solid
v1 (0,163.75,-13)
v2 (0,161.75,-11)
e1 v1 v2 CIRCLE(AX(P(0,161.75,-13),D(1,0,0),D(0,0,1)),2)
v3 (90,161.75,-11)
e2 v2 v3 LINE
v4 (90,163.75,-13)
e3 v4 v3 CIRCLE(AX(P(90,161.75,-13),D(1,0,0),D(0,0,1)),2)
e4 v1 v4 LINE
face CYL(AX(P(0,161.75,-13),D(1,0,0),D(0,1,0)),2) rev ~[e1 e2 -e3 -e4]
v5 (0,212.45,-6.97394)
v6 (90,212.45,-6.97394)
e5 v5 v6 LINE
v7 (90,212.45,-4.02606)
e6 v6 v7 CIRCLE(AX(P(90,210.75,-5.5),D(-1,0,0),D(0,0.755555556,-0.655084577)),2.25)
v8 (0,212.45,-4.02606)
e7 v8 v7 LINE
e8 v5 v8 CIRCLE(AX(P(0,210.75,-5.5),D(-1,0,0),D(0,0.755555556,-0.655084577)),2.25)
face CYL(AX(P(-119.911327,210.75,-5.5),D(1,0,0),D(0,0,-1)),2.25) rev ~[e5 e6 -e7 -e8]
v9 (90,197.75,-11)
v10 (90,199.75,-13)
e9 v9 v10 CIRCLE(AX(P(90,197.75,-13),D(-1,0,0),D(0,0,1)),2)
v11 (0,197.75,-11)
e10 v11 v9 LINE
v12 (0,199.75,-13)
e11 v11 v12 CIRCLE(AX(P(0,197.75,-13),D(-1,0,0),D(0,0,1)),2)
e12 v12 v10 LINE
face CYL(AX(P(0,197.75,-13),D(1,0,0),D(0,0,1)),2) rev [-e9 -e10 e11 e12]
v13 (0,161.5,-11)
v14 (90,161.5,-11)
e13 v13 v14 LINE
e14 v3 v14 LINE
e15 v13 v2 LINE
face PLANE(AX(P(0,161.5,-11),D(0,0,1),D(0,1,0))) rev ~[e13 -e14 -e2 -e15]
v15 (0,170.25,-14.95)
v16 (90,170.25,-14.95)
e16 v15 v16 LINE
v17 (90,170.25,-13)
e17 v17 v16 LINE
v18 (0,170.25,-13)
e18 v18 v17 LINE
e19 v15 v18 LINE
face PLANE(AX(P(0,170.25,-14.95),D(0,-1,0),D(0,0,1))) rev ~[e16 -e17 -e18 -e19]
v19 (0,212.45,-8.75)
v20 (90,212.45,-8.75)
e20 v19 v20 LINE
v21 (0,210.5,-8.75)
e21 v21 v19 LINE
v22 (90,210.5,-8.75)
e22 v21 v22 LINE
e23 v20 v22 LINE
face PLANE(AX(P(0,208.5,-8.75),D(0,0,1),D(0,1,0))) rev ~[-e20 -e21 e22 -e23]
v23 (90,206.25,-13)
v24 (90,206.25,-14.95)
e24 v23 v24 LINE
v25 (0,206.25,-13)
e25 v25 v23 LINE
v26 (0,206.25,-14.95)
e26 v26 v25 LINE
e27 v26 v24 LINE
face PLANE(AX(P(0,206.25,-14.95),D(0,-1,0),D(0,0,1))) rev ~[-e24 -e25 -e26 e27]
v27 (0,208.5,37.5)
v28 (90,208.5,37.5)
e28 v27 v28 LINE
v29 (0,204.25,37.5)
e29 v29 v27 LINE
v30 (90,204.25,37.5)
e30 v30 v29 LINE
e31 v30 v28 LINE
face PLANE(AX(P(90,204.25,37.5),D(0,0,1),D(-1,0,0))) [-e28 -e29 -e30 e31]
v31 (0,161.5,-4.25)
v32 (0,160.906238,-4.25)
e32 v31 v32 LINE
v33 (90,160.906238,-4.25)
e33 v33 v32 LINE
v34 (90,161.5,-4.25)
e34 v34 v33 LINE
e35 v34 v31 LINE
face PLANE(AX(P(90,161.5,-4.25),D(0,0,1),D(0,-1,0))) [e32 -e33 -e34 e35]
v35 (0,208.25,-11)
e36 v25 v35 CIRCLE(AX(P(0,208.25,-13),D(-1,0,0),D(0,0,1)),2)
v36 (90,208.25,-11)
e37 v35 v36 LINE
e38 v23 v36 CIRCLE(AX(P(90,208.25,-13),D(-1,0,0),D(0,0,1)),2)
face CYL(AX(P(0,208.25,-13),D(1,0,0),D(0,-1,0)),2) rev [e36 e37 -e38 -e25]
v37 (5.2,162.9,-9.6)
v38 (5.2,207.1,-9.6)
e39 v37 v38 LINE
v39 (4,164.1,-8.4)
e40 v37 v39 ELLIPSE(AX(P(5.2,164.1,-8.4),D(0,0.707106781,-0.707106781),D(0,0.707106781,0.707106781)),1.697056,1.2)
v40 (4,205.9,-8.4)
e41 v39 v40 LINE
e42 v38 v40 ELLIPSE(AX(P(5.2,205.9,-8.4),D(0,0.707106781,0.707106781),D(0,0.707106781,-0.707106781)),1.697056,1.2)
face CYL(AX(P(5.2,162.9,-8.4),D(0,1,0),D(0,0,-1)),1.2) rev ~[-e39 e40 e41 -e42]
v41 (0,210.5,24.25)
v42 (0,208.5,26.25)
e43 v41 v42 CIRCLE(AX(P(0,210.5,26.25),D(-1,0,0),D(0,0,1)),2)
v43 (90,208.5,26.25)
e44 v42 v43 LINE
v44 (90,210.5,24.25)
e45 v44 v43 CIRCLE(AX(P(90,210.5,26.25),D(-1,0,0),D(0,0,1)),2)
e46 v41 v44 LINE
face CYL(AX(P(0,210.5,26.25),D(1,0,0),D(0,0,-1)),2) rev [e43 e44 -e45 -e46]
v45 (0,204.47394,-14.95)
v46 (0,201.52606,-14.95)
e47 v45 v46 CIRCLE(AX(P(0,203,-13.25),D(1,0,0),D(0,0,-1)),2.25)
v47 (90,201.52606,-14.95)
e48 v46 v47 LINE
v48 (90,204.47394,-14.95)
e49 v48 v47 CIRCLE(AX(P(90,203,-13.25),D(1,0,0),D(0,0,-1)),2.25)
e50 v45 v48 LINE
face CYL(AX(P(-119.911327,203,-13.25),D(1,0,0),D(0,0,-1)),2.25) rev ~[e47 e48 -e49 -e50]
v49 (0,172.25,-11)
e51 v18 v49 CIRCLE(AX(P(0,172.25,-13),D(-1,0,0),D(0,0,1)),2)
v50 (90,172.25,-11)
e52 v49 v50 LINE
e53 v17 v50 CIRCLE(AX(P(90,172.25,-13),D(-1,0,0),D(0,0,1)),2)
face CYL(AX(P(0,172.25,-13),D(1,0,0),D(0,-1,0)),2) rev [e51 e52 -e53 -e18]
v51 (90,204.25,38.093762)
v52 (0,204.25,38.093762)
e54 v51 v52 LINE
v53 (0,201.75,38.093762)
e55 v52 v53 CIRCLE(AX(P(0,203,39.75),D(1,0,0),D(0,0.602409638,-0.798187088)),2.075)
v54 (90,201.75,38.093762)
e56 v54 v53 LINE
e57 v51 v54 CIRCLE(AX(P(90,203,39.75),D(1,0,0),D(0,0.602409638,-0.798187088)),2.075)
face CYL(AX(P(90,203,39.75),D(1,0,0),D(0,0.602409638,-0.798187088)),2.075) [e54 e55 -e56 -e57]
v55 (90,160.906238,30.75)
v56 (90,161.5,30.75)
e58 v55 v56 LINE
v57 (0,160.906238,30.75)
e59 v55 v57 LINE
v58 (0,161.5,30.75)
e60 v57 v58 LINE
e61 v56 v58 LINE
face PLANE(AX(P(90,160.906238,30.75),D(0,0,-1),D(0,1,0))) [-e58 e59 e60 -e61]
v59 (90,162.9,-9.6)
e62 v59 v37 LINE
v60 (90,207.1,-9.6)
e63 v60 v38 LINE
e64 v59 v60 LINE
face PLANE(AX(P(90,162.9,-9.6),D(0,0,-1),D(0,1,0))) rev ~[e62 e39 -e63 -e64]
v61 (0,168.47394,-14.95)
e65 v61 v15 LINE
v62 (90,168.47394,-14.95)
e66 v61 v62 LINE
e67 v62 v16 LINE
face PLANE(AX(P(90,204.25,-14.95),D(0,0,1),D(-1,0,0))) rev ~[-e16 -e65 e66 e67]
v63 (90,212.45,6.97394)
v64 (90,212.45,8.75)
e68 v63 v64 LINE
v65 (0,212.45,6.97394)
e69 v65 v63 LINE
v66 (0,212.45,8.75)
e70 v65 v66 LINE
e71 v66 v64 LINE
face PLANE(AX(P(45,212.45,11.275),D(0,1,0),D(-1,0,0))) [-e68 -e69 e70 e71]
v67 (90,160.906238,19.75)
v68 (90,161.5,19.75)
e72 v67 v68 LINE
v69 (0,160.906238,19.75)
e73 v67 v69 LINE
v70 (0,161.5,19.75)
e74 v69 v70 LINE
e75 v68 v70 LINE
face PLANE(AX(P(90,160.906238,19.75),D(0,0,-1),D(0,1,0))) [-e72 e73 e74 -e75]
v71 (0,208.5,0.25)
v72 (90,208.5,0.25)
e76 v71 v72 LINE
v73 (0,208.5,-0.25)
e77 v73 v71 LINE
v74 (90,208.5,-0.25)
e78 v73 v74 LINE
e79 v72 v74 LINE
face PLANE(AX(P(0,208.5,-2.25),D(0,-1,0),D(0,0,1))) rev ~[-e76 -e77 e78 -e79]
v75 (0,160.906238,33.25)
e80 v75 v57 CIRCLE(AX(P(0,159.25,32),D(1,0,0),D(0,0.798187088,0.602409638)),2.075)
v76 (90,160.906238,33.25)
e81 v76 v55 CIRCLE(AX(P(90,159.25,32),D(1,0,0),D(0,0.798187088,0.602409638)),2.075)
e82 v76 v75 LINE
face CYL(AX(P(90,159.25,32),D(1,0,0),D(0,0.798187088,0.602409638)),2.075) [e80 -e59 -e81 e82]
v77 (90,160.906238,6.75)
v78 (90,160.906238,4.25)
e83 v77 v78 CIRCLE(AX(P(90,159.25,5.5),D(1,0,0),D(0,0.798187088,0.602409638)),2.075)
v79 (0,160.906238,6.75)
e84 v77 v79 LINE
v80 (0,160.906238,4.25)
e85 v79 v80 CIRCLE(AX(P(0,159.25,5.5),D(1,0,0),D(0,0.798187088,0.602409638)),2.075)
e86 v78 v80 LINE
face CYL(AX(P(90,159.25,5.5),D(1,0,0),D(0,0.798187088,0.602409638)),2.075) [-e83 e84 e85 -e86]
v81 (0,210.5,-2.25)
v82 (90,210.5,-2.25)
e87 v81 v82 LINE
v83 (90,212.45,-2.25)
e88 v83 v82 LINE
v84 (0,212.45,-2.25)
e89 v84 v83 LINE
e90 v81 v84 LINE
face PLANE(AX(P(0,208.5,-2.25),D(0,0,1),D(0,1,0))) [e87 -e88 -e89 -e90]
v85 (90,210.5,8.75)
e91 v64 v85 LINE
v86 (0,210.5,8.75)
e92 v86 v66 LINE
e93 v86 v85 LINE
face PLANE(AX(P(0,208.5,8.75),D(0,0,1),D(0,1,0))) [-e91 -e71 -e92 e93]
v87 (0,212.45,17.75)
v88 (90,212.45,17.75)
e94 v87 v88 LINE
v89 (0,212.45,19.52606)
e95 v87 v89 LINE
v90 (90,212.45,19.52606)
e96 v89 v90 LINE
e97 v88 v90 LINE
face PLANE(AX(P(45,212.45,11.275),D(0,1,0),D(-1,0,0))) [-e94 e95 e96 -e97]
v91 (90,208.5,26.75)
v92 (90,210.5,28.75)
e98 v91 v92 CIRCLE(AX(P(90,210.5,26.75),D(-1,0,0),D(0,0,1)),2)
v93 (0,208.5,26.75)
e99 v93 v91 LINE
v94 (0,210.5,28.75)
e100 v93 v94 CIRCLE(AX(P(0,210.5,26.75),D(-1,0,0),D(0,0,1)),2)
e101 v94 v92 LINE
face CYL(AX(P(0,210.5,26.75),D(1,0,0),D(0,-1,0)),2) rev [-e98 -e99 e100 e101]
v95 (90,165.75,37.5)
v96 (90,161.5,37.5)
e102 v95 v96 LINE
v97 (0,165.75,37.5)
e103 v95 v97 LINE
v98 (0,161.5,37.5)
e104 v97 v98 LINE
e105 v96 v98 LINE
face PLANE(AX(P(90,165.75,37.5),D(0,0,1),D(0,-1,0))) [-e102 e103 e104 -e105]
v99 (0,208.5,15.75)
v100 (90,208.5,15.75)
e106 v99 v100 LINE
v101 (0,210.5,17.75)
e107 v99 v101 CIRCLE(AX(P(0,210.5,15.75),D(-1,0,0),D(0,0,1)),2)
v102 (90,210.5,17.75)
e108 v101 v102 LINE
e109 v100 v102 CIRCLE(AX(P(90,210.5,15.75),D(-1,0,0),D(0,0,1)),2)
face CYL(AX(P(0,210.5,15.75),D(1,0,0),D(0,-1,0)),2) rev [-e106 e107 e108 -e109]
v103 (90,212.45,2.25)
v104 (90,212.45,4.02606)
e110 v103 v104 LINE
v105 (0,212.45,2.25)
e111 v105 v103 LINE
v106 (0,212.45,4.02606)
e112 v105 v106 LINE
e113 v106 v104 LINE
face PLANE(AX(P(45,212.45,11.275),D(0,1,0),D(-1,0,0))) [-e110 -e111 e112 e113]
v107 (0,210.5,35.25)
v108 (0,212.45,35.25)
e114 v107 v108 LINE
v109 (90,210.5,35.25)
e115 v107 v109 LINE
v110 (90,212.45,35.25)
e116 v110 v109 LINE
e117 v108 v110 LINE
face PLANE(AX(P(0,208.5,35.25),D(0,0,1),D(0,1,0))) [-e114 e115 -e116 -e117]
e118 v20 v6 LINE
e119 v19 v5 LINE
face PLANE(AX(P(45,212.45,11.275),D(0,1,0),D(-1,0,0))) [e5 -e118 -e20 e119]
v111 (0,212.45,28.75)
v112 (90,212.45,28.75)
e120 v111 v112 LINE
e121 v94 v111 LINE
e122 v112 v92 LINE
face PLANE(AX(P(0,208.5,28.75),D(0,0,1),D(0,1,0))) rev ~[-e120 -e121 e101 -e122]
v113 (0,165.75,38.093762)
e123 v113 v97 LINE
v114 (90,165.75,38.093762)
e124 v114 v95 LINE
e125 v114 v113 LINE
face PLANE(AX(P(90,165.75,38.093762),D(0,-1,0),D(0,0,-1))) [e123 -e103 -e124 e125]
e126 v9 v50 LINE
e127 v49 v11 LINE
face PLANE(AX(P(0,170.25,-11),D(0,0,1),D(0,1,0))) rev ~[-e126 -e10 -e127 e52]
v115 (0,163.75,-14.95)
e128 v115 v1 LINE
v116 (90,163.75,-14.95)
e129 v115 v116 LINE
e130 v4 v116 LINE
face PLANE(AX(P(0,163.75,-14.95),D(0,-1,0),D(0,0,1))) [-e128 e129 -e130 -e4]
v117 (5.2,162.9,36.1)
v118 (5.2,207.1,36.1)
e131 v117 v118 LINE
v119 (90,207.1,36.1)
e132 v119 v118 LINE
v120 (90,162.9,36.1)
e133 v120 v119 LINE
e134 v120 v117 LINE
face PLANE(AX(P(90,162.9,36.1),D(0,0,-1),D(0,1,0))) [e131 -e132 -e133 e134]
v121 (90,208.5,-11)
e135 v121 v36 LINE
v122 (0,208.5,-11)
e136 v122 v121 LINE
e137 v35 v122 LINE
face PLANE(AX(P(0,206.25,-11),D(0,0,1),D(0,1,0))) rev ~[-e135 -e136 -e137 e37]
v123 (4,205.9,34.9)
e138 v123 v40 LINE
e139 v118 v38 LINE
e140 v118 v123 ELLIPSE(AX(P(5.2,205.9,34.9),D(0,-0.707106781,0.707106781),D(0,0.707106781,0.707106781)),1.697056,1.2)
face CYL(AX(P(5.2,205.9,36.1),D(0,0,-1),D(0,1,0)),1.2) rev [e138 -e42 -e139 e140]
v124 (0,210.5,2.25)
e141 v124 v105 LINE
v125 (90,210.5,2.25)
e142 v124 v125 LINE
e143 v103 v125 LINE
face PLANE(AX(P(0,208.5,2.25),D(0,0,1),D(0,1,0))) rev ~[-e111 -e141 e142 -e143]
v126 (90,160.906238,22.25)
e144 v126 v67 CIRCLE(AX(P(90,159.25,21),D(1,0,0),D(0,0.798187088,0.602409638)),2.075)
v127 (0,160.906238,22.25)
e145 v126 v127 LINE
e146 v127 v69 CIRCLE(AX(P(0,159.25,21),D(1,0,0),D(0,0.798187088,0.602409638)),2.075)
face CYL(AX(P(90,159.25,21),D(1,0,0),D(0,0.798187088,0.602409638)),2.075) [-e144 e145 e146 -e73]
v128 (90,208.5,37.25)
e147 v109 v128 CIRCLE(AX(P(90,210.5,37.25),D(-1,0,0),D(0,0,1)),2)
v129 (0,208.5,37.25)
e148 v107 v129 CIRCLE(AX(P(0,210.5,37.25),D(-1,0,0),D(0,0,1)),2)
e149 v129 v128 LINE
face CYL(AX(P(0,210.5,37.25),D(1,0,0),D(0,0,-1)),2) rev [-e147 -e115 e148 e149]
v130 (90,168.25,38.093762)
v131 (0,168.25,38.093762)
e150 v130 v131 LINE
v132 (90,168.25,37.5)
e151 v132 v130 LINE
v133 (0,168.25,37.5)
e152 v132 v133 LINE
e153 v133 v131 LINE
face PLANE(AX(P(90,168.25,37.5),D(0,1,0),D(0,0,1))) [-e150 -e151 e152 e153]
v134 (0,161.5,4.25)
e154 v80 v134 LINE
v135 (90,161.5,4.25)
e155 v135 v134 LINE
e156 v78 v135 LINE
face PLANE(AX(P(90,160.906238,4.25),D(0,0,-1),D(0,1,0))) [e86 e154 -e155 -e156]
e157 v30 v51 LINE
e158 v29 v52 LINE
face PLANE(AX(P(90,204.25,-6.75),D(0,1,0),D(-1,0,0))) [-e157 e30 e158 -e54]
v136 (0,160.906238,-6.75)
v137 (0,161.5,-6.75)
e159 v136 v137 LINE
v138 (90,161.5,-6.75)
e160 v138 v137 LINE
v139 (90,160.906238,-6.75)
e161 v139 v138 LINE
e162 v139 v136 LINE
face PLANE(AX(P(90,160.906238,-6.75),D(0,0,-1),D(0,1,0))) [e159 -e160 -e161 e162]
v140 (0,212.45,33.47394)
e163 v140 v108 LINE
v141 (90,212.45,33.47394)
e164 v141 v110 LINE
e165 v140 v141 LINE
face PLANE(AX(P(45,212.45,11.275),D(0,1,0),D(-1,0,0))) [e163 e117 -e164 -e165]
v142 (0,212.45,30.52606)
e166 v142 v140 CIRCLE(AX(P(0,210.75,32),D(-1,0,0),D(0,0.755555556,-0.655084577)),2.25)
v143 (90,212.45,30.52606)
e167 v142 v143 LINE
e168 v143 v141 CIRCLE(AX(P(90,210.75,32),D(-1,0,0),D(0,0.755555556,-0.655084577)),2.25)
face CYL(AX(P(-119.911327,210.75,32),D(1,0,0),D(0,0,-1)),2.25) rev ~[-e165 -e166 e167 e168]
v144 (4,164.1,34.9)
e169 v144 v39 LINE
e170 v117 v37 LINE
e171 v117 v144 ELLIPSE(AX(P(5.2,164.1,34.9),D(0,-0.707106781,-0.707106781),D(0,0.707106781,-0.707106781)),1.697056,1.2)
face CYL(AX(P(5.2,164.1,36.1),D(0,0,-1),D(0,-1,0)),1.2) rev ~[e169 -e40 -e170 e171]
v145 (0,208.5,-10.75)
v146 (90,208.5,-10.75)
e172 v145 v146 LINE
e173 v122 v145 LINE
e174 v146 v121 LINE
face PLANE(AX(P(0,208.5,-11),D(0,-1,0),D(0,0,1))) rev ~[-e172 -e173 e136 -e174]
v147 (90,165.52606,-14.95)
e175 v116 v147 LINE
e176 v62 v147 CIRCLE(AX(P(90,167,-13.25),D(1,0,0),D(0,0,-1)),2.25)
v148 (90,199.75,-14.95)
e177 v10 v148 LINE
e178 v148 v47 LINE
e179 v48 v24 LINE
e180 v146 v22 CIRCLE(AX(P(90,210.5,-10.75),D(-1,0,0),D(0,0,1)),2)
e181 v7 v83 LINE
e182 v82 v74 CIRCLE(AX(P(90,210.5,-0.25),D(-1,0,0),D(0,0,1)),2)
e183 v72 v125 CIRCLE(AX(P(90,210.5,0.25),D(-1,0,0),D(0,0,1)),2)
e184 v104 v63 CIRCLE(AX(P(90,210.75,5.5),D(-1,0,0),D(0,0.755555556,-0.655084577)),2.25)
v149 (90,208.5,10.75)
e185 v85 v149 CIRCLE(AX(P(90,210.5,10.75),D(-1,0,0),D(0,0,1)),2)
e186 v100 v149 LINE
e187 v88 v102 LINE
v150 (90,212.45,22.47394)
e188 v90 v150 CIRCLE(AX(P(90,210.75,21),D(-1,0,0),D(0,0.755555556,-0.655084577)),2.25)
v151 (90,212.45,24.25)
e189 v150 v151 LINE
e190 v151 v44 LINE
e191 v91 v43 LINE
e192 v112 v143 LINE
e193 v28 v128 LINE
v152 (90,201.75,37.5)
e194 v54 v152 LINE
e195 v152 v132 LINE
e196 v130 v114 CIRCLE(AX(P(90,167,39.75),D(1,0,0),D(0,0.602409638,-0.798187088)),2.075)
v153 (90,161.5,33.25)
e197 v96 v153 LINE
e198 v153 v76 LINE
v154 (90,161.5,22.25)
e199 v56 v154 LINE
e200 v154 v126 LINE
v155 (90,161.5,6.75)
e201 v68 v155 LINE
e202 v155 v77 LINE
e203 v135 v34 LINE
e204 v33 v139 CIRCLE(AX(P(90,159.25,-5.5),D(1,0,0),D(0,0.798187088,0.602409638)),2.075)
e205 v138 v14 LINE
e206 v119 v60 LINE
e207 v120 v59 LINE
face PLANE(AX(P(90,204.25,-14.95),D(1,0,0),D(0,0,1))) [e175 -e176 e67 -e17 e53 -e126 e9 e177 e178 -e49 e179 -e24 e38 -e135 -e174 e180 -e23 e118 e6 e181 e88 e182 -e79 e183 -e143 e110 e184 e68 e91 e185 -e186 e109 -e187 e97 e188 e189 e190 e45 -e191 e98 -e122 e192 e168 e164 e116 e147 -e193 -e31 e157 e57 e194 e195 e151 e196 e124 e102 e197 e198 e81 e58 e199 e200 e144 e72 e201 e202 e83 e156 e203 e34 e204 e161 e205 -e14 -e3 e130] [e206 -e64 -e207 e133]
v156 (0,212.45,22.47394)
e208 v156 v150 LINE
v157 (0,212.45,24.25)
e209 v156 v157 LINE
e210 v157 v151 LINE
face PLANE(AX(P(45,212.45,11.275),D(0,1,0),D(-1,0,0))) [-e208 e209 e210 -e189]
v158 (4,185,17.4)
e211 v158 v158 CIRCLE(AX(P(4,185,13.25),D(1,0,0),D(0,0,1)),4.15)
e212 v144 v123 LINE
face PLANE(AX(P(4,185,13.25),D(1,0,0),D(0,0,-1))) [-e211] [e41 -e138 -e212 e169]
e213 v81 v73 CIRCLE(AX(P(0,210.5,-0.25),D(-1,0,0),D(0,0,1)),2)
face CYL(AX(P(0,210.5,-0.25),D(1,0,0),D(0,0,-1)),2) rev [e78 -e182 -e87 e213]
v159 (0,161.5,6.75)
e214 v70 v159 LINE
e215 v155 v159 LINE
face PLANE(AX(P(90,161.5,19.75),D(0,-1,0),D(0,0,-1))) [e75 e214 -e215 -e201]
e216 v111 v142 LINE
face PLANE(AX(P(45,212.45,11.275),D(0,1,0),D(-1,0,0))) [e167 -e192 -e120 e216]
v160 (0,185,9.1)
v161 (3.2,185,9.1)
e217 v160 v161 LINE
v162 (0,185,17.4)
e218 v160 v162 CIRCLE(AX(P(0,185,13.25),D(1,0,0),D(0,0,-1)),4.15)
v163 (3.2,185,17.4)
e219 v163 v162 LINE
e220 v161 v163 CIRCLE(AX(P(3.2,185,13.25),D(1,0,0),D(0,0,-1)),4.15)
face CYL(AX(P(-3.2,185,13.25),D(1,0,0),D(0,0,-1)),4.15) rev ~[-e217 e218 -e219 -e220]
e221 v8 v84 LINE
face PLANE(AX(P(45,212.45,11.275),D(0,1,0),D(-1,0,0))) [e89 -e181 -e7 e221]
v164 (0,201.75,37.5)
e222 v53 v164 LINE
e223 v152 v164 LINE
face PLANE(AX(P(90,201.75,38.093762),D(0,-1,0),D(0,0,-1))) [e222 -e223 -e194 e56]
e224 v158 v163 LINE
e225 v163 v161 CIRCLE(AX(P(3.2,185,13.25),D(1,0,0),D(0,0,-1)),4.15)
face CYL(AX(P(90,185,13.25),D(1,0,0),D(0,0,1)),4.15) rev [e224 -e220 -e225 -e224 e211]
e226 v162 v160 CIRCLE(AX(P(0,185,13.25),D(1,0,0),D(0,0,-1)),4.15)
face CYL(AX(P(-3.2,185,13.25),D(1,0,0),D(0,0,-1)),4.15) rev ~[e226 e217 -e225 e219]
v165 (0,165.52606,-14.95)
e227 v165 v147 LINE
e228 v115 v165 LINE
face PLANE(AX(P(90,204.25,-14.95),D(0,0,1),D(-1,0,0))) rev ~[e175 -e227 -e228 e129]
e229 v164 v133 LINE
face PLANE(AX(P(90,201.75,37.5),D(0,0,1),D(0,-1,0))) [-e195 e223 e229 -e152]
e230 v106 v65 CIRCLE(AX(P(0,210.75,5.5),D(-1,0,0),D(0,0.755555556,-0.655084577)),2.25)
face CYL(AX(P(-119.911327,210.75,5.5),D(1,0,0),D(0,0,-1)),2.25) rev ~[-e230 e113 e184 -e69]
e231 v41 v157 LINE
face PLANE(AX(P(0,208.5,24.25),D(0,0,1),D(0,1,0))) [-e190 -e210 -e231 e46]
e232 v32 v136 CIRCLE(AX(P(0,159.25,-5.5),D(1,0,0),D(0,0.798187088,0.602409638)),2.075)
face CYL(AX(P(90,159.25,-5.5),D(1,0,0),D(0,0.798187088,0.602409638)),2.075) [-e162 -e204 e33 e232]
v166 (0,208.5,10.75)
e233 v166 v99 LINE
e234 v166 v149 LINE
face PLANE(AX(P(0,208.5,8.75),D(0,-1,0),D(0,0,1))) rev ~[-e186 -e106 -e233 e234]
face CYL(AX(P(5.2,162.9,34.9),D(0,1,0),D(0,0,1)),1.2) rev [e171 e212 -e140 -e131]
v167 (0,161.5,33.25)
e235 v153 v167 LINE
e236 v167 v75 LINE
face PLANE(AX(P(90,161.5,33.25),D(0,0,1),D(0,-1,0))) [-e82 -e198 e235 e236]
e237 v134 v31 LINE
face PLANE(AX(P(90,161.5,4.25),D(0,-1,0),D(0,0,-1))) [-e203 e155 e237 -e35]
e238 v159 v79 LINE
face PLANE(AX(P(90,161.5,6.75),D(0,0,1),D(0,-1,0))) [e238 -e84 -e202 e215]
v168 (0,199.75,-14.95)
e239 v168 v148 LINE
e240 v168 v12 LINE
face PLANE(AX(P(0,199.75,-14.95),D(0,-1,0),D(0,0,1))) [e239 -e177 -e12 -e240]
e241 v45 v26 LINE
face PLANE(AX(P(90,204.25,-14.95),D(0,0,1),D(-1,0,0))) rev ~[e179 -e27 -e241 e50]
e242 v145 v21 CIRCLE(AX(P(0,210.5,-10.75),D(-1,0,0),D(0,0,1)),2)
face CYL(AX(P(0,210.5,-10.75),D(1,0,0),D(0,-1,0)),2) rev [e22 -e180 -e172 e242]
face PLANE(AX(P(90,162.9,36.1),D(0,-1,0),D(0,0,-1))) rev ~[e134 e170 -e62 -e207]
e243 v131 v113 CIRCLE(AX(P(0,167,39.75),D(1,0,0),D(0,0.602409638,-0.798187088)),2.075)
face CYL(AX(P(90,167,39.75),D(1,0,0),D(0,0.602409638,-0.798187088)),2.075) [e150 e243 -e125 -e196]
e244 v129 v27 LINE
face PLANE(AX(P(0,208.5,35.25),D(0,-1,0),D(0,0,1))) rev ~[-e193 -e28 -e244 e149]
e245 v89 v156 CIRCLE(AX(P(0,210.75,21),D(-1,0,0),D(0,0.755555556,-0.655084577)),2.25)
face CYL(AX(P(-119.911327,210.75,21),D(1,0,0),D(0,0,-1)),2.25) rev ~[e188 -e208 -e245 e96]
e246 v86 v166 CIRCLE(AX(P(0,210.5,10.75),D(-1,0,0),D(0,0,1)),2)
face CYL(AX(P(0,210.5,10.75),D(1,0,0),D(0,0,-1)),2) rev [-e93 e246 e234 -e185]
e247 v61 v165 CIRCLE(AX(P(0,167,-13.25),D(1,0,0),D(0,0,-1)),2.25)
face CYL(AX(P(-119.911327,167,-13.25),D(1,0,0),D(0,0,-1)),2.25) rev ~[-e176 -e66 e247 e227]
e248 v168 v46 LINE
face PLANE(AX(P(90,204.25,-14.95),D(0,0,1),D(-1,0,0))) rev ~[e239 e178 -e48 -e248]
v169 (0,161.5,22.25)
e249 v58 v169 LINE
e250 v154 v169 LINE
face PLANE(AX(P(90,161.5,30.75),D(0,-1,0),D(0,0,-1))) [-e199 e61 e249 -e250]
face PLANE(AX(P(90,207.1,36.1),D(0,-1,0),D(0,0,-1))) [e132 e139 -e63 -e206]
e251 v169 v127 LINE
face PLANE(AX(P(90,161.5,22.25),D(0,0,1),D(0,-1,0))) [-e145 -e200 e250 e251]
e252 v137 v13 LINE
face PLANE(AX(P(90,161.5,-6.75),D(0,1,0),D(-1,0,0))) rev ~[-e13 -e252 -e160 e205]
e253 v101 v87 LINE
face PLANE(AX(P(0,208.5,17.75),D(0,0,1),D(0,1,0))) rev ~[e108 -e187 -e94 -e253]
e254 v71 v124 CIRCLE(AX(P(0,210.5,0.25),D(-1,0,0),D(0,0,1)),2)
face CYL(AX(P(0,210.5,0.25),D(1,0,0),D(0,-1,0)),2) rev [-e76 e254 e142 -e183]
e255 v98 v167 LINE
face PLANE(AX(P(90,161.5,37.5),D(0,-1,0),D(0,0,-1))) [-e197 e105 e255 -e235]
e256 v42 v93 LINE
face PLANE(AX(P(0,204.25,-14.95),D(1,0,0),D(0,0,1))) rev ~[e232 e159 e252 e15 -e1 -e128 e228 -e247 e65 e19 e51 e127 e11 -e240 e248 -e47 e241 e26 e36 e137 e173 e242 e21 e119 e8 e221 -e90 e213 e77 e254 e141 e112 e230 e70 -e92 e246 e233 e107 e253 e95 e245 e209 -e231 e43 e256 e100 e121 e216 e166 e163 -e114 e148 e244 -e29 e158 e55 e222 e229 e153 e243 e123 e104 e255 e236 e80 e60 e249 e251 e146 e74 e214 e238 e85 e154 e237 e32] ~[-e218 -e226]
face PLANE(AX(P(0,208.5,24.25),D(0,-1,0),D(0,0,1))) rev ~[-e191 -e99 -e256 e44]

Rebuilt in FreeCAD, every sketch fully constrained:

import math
import FreeCAD as App
import Part
import Sketcher


def edges_at(feature, points):
    """Names of the edges that pass closest to the given points."""
    edges = feature.Shape.Edges
    near = lambda p: min(range(len(edges)), key=lambda i: edges[i].distToShape(Part.Vertex(*p))[0])
    return sorted({f"Edge{near(p) + 1}" for p in points})

doc = App.newDocument("Part")
body = doc.addObject("PartDesign::Body", "Body")

# Sketch on YZ plane
sketch1 = body.newObject("Sketcher::SketchObject", "Sketch")
sketch1.AttachmentSupport = (doc.getObject("YZ_Plane"), [""])
sketch1.MapMode = "FlatFace"
sketch1.AttachmentOffset = App.Placement(App.Vector(0, 0, 90), App.Rotation())
sketch1.addGeometry([
    Part.LineSegment(App.Vector(160.9, -6.8, 0), App.Vector(204.2, -6.8, 0)),  # 0
    Part.LineSegment(App.Vector(204.2, -6.8, 0), App.Vector(204.2, 38.1, 0)),  # 1
    Part.ArcOfCircle(Part.Circle(App.Vector(203, 39.8, 0), App.Vector(0, 0, 1), 2.1), math.radians(-53), math.radians(233)),  # 2
    Part.LineSegment(App.Vector(201.8, 38.1, 0), App.Vector(201.8, 37.5, 0)),  # 3
    Part.LineSegment(App.Vector(201.8, 37.5, 0), App.Vector(168.2, 37.5, 0)),  # 4
    Part.LineSegment(App.Vector(168.2, 37.5, 0), App.Vector(168.2, 38.1, 0)),  # 5
    Part.ArcOfCircle(Part.Circle(App.Vector(167, 39.8, 0), App.Vector(0, 0, 1), 2.1), math.radians(-53), math.radians(233)),  # 6
    Part.LineSegment(App.Vector(165.8, 38.1, 0), App.Vector(165.8, 37.5, 0)),  # 7
    Part.LineSegment(App.Vector(165.8, 37.5, 0), App.Vector(161.5, 37.5, 0)),  # 8
    Part.LineSegment(App.Vector(161.5, 37.5, 0), App.Vector(161.5, 33.2, 0)),  # 9
    Part.LineSegment(App.Vector(161.5, 33.2, 0), App.Vector(160.9, 33.2, 0)),  # 10
    Part.ArcOfCircle(Part.Circle(App.Vector(159.2, 32, 0), App.Vector(0, 0, 1), 2.1), math.radians(37), math.radians(323)),  # 11
    Part.LineSegment(App.Vector(160.9, 30.8, 0), App.Vector(161.5, 30.8, 0)),  # 12
    Part.LineSegment(App.Vector(161.5, 30.8, 0), App.Vector(161.5, 22.2, 0)),  # 13
    Part.LineSegment(App.Vector(161.5, 22.2, 0), App.Vector(160.9, 22.2, 0)),  # 14
    Part.ArcOfCircle(Part.Circle(App.Vector(159.2, 21, 0), App.Vector(0, 0, 1), 2.1), math.radians(37), math.radians(323)),  # 15
    Part.LineSegment(App.Vector(160.9, 19.8, 0), App.Vector(161.5, 19.8, 0)),  # 16
    Part.LineSegment(App.Vector(161.5, 19.8, 0), App.Vector(161.5, 6.8, 0)),  # 17
    Part.LineSegment(App.Vector(161.5, 6.8, 0), App.Vector(160.9, 6.8, 0)),  # 18
    Part.ArcOfCircle(Part.Circle(App.Vector(159.2, 5.5, 0), App.Vector(0, 0, 1), 2.1), math.radians(37), math.radians(323)),  # 19
    Part.LineSegment(App.Vector(160.9, 4.2, 0), App.Vector(161.5, 4.2, 0)),  # 20
    Part.LineSegment(App.Vector(161.5, 4.2, 0), App.Vector(161.5, -4.2, 0)),  # 21
    Part.LineSegment(App.Vector(161.5, -4.2, 0), App.Vector(160.9, -4.2, 0)),  # 22
    Part.ArcOfCircle(Part.Circle(App.Vector(159.2, -5.5, 0), App.Vector(0, 0, 1), 2.1), math.radians(37), math.radians(323)),  # 23
], False)
sketch1.addConstraint([
    Sketcher.Constraint("Coincident", 0, 2, 1, 1),
    Sketcher.Constraint("Coincident", 1, 2, 2, 1),
    Sketcher.Constraint("Coincident", 2, 2, 3, 1),
    Sketcher.Constraint("Coincident", 3, 2, 4, 1),
    Sketcher.Constraint("Coincident", 4, 2, 5, 1),
    Sketcher.Constraint("Coincident", 5, 2, 6, 1),
    Sketcher.Constraint("Coincident", 6, 2, 7, 1),
    Sketcher.Constraint("Coincident", 7, 2, 8, 1),
    Sketcher.Constraint("Coincident", 8, 2, 9, 1),
    Sketcher.Constraint("Coincident", 9, 2, 10, 1),
    Sketcher.Constraint("Coincident", 10, 2, 11, 1),
    Sketcher.Constraint("Coincident", 11, 2, 12, 1),
    Sketcher.Constraint("Coincident", 12, 2, 13, 1),
    Sketcher.Constraint("Coincident", 13, 2, 14, 1),
    Sketcher.Constraint("Coincident", 14, 2, 15, 1),
    Sketcher.Constraint("Coincident", 15, 2, 16, 1),
    Sketcher.Constraint("Coincident", 16, 2, 17, 1),
    Sketcher.Constraint("Coincident", 17, 2, 18, 1),
    Sketcher.Constraint("Coincident", 18, 2, 19, 1),
    Sketcher.Constraint("Coincident", 19, 2, 20, 1),
    Sketcher.Constraint("Coincident", 20, 2, 21, 1),
    Sketcher.Constraint("Coincident", 21, 2, 22, 1),
    Sketcher.Constraint("Coincident", 22, 2, 23, 1),
    Sketcher.Constraint("Coincident", 23, 2, 0, 1),
    Sketcher.Constraint("Horizontal", 0),
    Sketcher.Constraint("Vertical", 1),
    Sketcher.Constraint("Vertical", 3),
    Sketcher.Constraint("Horizontal", 4),
    Sketcher.Constraint("Vertical", 5),
    Sketcher.Constraint("Vertical", 7),
    Sketcher.Constraint("Horizontal", 8),
    Sketcher.Constraint("Vertical", 9),
    Sketcher.Constraint("Horizontal", 10),
    Sketcher.Constraint("Horizontal", 12),
    Sketcher.Constraint("Vertical", 13),
    Sketcher.Constraint("Horizontal", 14),
    Sketcher.Constraint("Horizontal", 16),
    Sketcher.Constraint("Vertical", 17),
    Sketcher.Constraint("Horizontal", 18),
    Sketcher.Constraint("Horizontal", 20),
    Sketcher.Constraint("Vertical", 21),
    Sketcher.Constraint("Horizontal", 22),
    Sketcher.Constraint("Equal", 2, 6),
    Sketcher.Constraint("Equal", 6, 11),
    Sketcher.Constraint("Equal", 11, 15),
    Sketcher.Constraint("Equal", 15, 19),
    Sketcher.Constraint("Equal", 19, 23),
    Sketcher.Constraint("Symmetric", 19, 3, 23, 3, -1),
    Sketcher.Constraint("Horizontal", 2, 3, 6, 3),
    Sketcher.Constraint("Horizontal", 1, 2, 2, 2),
    Sketcher.Constraint("Horizontal", 2, 2, 5, 2),
    Sketcher.Constraint("Horizontal", 5, 2, 6, 2),
    Sketcher.Constraint("Horizontal", 4, 2, 7, 2),
    Sketcher.Constraint("Vertical", 11, 3, 15, 3),
    Sketcher.Constraint("Vertical", 15, 3, 19, 3),
    Sketcher.Constraint("Vertical", 10, 2, 11, 2),
    Sketcher.Constraint("Vertical", 9, 2, 12, 2),
    Sketcher.Constraint("Vertical", 11, 2, 14, 2),
    Sketcher.Constraint("Vertical", 14, 2, 15, 2),
    Sketcher.Constraint("Vertical", 13, 2, 16, 2),
    Sketcher.Constraint("Vertical", 15, 2, 18, 2),
    Sketcher.Constraint("Vertical", 18, 2, 19, 2),
    Sketcher.Constraint("Vertical", 17, 2, 20, 2),
    Sketcher.Constraint("Vertical", 19, 2, 22, 2),
    Sketcher.Constraint("Vertical", 22, 2, 23, 2),
    Sketcher.Constraint("Equal", 22, 3),
    Sketcher.Constraint("Equal", 8, 9),
    Sketcher.Constraint("Equal", 13, 21),
    Sketcher.Constraint("DistanceY", 17, 2, 17, 1, 13.0),
    Sketcher.Constraint("DistanceX", 4, 2, 4, 1, 33.5),
    Sketcher.Constraint("DistanceY", 13, 2, 13, 1, 8.5),
    Sketcher.Constraint("DistanceX", -1, 1, 2, 3, 203.0),
    Sketcher.Constraint("DistanceX", -1, 1, 6, 3, 167.0),
    Sketcher.Constraint("DistanceY", -1, 1, 11, 3, 32.0),
    Sketcher.Constraint("Radius", 2, 2.075),
    Sketcher.Constraint("DistanceX", 23, 3, 0, 2, 45.0),
    Sketcher.Constraint("DistanceY", 19, 3, 4, 2, 32.0),
])
pad1 = body.newObject("PartDesign::Pad", "Pad")
pad1.Profile = sketch1
pad1.Length = 90
pad1.Reversed = True

# Sketch on XY plane
sketch2 = body.newObject("Sketcher::SketchObject", "Sketch001")
sketch2.AttachmentSupport = (doc.getObject("XY_Plane"), [""])
sketch2.MapMode = "FlatFace"
sketch2.AttachmentOffset = App.Placement(App.Vector(0, 0, -6.75), App.Rotation())
sketch2.addGeometry([
    Part.LineSegment(App.Vector(90, 204, 0), App.Vector(90, 162, 0)),
    Part.LineSegment(App.Vector(90, 162, 0), App.Vector(0, 162, 0)),
    Part.LineSegment(App.Vector(0, 162, 0), App.Vector(0, 204, 0)),
    Part.LineSegment(App.Vector(0, 204, 0), App.Vector(90, 204, 0)),
], False)
sketch2.addConstraint([
    Sketcher.Constraint("Coincident", 0, 2, 1, 1),
    Sketcher.Constraint("Coincident", 1, 2, 2, 1),
    Sketcher.Constraint("Coincident", 2, 2, 3, 1),
    Sketcher.Constraint("Coincident", 3, 2, 0, 1),
    Sketcher.Constraint("Vertical", 0),
    Sketcher.Constraint("Horizontal", 1),
    Sketcher.Constraint("Vertical", 2),
    Sketcher.Constraint("Horizontal", 3),
    Sketcher.Constraint("PointOnObject", 1, 2, -2),
    Sketcher.Constraint("DistanceX", 1, 2, 1, 1, 90.0),
    Sketcher.Constraint("DistanceY", 0, 2, 0, 1, 42.75),
    Sketcher.Constraint("DistanceY", -1, 1, 0, 2, 161.5),
])
pad2 = body.newObject("PartDesign::Pad", "Pad001")
pad2.Profile = sketch2
pad2.Length = 8.2
pad2.Reversed = True

# Sketch on XZ plane
sketch3 = body.newObject("Sketcher::SketchObject", "Sketch002")
sketch3.AttachmentSupport = (doc.getObject("XZ_Plane"), [""])
sketch3.MapMode = "FlatFace"
sketch3.AttachmentOffset = App.Placement(App.Vector(0, 0, -204.25), App.Rotation())
sketch3.addGeometry([
    Part.LineSegment(App.Vector(90, 38, 0), App.Vector(90, -15, 0)),
    Part.LineSegment(App.Vector(90, -15, 0), App.Vector(0, -15, 0)),
    Part.LineSegment(App.Vector(0, -15, 0), App.Vector(0, 38, 0)),
    Part.LineSegment(App.Vector(0, 38, 0), App.Vector(90, 38, 0)),
], False)
sketch3.addConstraint([
    Sketcher.Constraint("Coincident", 0, 2, 1, 1),
    Sketcher.Constraint("Coincident", 1, 2, 2, 1),
    Sketcher.Constraint("Coincident", 2, 2, 3, 1),
    Sketcher.Constraint("Coincident", 3, 2, 0, 1),
    Sketcher.Constraint("Vertical", 0),
    Sketcher.Constraint("Horizontal", 1),
    Sketcher.Constraint("Vertical", 2),
    Sketcher.Constraint("Horizontal", 3),
    Sketcher.Constraint("PointOnObject", 1, 2, -2),
    Sketcher.Constraint("DistanceX", 1, 2, 1, 1, 90.0),
    Sketcher.Constraint("DistanceY", 0, 2, 0, 1, 52.45),
    Sketcher.Constraint("DistanceY", -1, 1, 2, 2, 37.5),
])
pad3 = body.newObject("PartDesign::Pad", "Pad002")
pad3.Profile = sketch3
pad3.Length = 8.2
pad3.Reversed = True

# Sketch on YZ plane
sketch4 = body.newObject("Sketcher::SketchObject", "Sketch003")
sketch4.AttachmentSupport = (doc.getObject("YZ_Plane"), [""])
sketch4.MapMode = "FlatFace"
sketch4.addGeometry([
    Part.LineSegment(App.Vector(163.8, -14.9, 0), App.Vector(161.5, -14.9, 0)),
    Part.LineSegment(App.Vector(161.5, -14.9, 0), App.Vector(161.5, -11, 0)),
    Part.LineSegment(App.Vector(161.5, -11, 0), App.Vector(163.8, -11, 0)),
    Part.LineSegment(App.Vector(163.8, -11, 0), App.Vector(163.8, -14.9, 0)),
], False)
sketch4.addConstraint([
    Sketcher.Constraint("Coincident", 0, 2, 1, 1),
    Sketcher.Constraint("Coincident", 1, 2, 2, 1),
    Sketcher.Constraint("Coincident", 2, 2, 3, 1),
    Sketcher.Constraint("Coincident", 3, 2, 0, 1),
    Sketcher.Constraint("Horizontal", 0),
    Sketcher.Constraint("Vertical", 1),
    Sketcher.Constraint("Horizontal", 2),
    Sketcher.Constraint("Vertical", 3),
    Sketcher.Constraint("DistanceY", 1, 2, -1, 1, 11.0),
    Sketcher.Constraint("DistanceX", 0, 2, 0, 1, 2.25),
    Sketcher.Constraint("DistanceY", 1, 1, 1, 2, 3.95),
    Sketcher.Constraint("DistanceX", -1, 1, 0, 2, 161.5),
])
pocket1 = body.newObject("PartDesign::Pocket", "Pocket")
pocket1.Profile = sketch4
pocket1.Type = "ThroughAll"
pocket1.Reversed = True

# Sketch on YZ plane
sketch5 = body.newObject("Sketcher::SketchObject", "Sketch004")
sketch5.AttachmentSupport = (doc.getObject("YZ_Plane"), [""])
sketch5.MapMode = "FlatFace"
sketch5.addGeometry([
    Part.LineSegment(App.Vector(199.8, -14.9, 0), App.Vector(170.2, -14.9, 0)),
    Part.LineSegment(App.Vector(170.2, -14.9, 0), App.Vector(170.2, -11, 0)),
    Part.LineSegment(App.Vector(170.2, -11, 0), App.Vector(199.8, -11, 0)),
    Part.LineSegment(App.Vector(199.8, -11, 0), App.Vector(199.8, -14.9, 0)),
], False)
sketch5.addConstraint([
    Sketcher.Constraint("Coincident", 0, 2, 1, 1),
    Sketcher.Constraint("Coincident", 1, 2, 2, 1),
    Sketcher.Constraint("Coincident", 2, 2, 3, 1),
    Sketcher.Constraint("Coincident", 3, 2, 0, 1),
    Sketcher.Constraint("Horizontal", 0),
    Sketcher.Constraint("Vertical", 1),
    Sketcher.Constraint("Horizontal", 2),
    Sketcher.Constraint("Vertical", 3),
    Sketcher.Constraint("DistanceX", 0, 2, 0, 1, 29.5),
    Sketcher.Constraint("DistanceY", 1, 2, -1, 1, 11.0),
    Sketcher.Constraint("DistanceY", 1, 1, 1, 2, 3.95),
    Sketcher.Constraint("DistanceX", -1, 1, 0, 2, 170.25),
])
pocket2 = body.newObject("PartDesign::Pocket", "Pocket001")
pocket2.Profile = sketch5
pocket2.Type = "ThroughAll"
pocket2.Reversed = True

# Sketch on YZ plane
sketch6 = body.newObject("Sketcher::SketchObject", "Sketch005")
sketch6.AttachmentSupport = (doc.getObject("YZ_Plane"), [""])
sketch6.MapMode = "FlatFace"
sketch6.addGeometry([
    Part.LineSegment(App.Vector(212.4, -14.9, 0), App.Vector(206.2, -14.9, 0)),
    Part.LineSegment(App.Vector(206.2, -14.9, 0), App.Vector(206.2, -11, 0)),
    Part.LineSegment(App.Vector(206.2, -11, 0), App.Vector(212.4, -11, 0)),
    Part.LineSegment(App.Vector(212.4, -11, 0), App.Vector(212.4, -14.9, 0)),
], False)
sketch6.addConstraint([
    Sketcher.Constraint("Coincident", 0, 2, 1, 1),
    Sketcher.Constraint("Coincident", 1, 2, 2, 1),
    Sketcher.Constraint("Coincident", 2, 2, 3, 1),
    Sketcher.Constraint("Coincident", 3, 2, 0, 1),
    Sketcher.Constraint("Horizontal", 0),
    Sketcher.Constraint("Vertical", 1),
    Sketcher.Constraint("Horizontal", 2),
    Sketcher.Constraint("Vertical", 3),
    Sketcher.Constraint("DistanceX", 0, 2, 0, 1, 6.2),
    Sketcher.Constraint("DistanceY", 1, 2, -1, 1, 11.0),
    Sketcher.Constraint("DistanceY", 1, 1, 1, 2, 3.95),
    Sketcher.Constraint("DistanceX", -1, 1, 0, 2, 206.25),
])
pocket3 = body.newObject("PartDesign::Pocket", "Pocket002")
pocket3.Profile = sketch6
pocket3.Type = "ThroughAll"
pocket3.Reversed = True

# Sketch on YZ plane
sketch7 = body.newObject("Sketcher::SketchObject", "Sketch006")
sketch7.AttachmentSupport = (doc.getObject("YZ_Plane"), [""])
sketch7.MapMode = "FlatFace"
sketch7.addGeometry([
    Part.LineSegment(App.Vector(212.4, -11, 0), App.Vector(208.5, -11, 0)),
    Part.LineSegment(App.Vector(208.5, -11, 0), App.Vector(208.5, -8.8, 0)),
    Part.LineSegment(App.Vector(208.5, -8.8, 0), App.Vector(212.4, -8.8, 0)),
    Part.LineSegment(App.Vector(212.4, -8.8, 0), App.Vector(212.4, -11, 0)),
], False)
sketch7.addConstraint([
    Sketcher.Constraint("Coincident", 0, 2, 1, 1),
    Sketcher.Constraint("Coincident", 1, 2, 2, 1),
    Sketcher.Constraint("Coincident", 2, 2, 3, 1),
    Sketcher.Constraint("Coincident", 3, 2, 0, 1),
    Sketcher.Constraint("Horizontal", 0),
    Sketcher.Constraint("Vertical", 1),
    Sketcher.Constraint("Horizontal", 2),
    Sketcher.Constraint("Vertical", 3),
    Sketcher.Constraint("DistanceY", 0, 2, -1, 1, 11.0),
    Sketcher.Constraint("DistanceX", 0, 2, 0, 1, 3.95),
    Sketcher.Constraint("DistanceY", 1, 1, 1, 2, 2.25),
    Sketcher.Constraint("DistanceX", -1, 1, 0, 2, 208.5),
])
pocket4 = body.newObject("PartDesign::Pocket", "Pocket003")
pocket4.Profile = sketch7
pocket4.Type = "ThroughAll"
pocket4.Reversed = True

# Sketch on YZ plane
sketch8 = body.newObject("Sketcher::SketchObject", "Sketch007")
sketch8.AttachmentSupport = (doc.getObject("YZ_Plane"), [""])
sketch8.MapMode = "FlatFace"
sketch8.addGeometry([
    Part.LineSegment(App.Vector(212.4, -2.2, 0), App.Vector(208.5, -2.2, 0)),
    Part.LineSegment(App.Vector(208.5, -2.2, 0), App.Vector(208.5, 2.2, 0)),
    Part.LineSegment(App.Vector(208.5, 2.2, 0), App.Vector(212.4, 2.2, 0)),
    Part.LineSegment(App.Vector(212.4, 2.2, 0), App.Vector(212.4, -2.2, 0)),
], False)
sketch8.addConstraint([
    Sketcher.Constraint("Coincident", 0, 2, 1, 1),
    Sketcher.Constraint("Coincident", 1, 2, 2, 1),
    Sketcher.Constraint("Coincident", 2, 2, 3, 1),
    Sketcher.Constraint("Coincident", 3, 2, 0, 1),
    Sketcher.Constraint("Horizontal", 0),
    Sketcher.Constraint("Vertical", 1),
    Sketcher.Constraint("Horizontal", 2),
    Sketcher.Constraint("Vertical", 3),
    Sketcher.Constraint("DistanceY", 1, 1, 1, 2, 4.5),
    Sketcher.Constraint("DistanceX", 0, 2, 0, 1, 3.95),
    Sketcher.Constraint("DistanceX", -1, 1, 0, 2, 208.5),
    Sketcher.Constraint("DistanceY", 0, 2, -1, 1, 2.25),
])
pocket5 = body.newObject("PartDesign::Pocket", "Pocket004")
pocket5.Profile = sketch8
pocket5.Type = "ThroughAll"
pocket5.Reversed = True

# Sketch on YZ plane
sketch9 = body.newObject("Sketcher::SketchObject", "Sketch008")
sketch9.AttachmentSupport = (doc.getObject("YZ_Plane"), [""])
sketch9.MapMode = "FlatFace"
sketch9.addGeometry([
    Part.LineSegment(App.Vector(212.4, 8.8, 0), App.Vector(208.5, 8.8, 0)),
    Part.LineSegment(App.Vector(208.5, 8.8, 0), App.Vector(208.5, 17.8, 0)),
    Part.LineSegment(App.Vector(208.5, 17.8, 0), App.Vector(212.4, 17.8, 0)),
    Part.LineSegment(App.Vector(212.4, 17.8, 0), App.Vector(212.4, 8.8, 0)),
], False)
sketch9.addConstraint([
    Sketcher.Constraint("Coincident", 0, 2, 1, 1),
    Sketcher.Constraint("Coincident", 1, 2, 2, 1),
    Sketcher.Constraint("Coincident", 2, 2, 3, 1),
    Sketcher.Constraint("Coincident", 3, 2, 0, 1),
    Sketcher.Constraint("Horizontal", 0),
    Sketcher.Constraint("Vertical", 1),
    Sketcher.Constraint("Horizontal", 2),
    Sketcher.Constraint("Vertical", 3),
    Sketcher.Constraint("DistanceY", 1, 1, 1, 2, 9.0),
    Sketcher.Constraint("DistanceX", 0, 2, 0, 1, 3.95),
    Sketcher.Constraint("DistanceX", -1, 1, 0, 2, 208.5),
    Sketcher.Constraint("DistanceY", -1, 1, 0, 2, 8.75),
])
pocket6 = body.newObject("PartDesign::Pocket", "Pocket005")
pocket6.Profile = sketch9
pocket6.Type = "ThroughAll"
pocket6.Reversed = True

# Sketch on YZ plane
sketch10 = body.newObject("Sketcher::SketchObject", "Sketch009")
sketch10.AttachmentSupport = (doc.getObject("YZ_Plane"), [""])
sketch10.MapMode = "FlatFace"
sketch10.addGeometry([
    Part.LineSegment(App.Vector(212.4, 24.2, 0), App.Vector(208.5, 24.2, 0)),
    Part.LineSegment(App.Vector(208.5, 24.2, 0), App.Vector(208.5, 28.8, 0)),
    Part.LineSegment(App.Vector(208.5, 28.8, 0), App.Vector(212.4, 28.8, 0)),
    Part.LineSegment(App.Vector(212.4, 28.8, 0), App.Vector(212.4, 24.2, 0)),
], False)
sketch10.addConstraint([
    Sketcher.Constraint("Coincident", 0, 2, 1, 1),
    Sketcher.Constraint("Coincident", 1, 2, 2, 1),
    Sketcher.Constraint("Coincident", 2, 2, 3, 1),
    Sketcher.Constraint("Coincident", 3, 2, 0, 1),
    Sketcher.Constraint("Horizontal", 0),
    Sketcher.Constraint("Vertical", 1),
    Sketcher.Constraint("Horizontal", 2),
    Sketcher.Constraint("Vertical", 3),
    Sketcher.Constraint("DistanceY", 1, 1, 1, 2, 4.5),
    Sketcher.Constraint("DistanceX", 0, 2, 0, 1, 3.95),
    Sketcher.Constraint("DistanceX", -1, 1, 0, 2, 208.5),
    Sketcher.Constraint("DistanceY", -1, 1, 0, 2, 24.25),
])
pocket7 = body.newObject("PartDesign::Pocket", "Pocket006")
pocket7.Profile = sketch10
pocket7.Type = "ThroughAll"
pocket7.Reversed = True

# Sketch on YZ plane
sketch11 = body.newObject("Sketcher::SketchObject", "Sketch010")
sketch11.AttachmentSupport = (doc.getObject("YZ_Plane"), [""])
sketch11.MapMode = "FlatFace"
sketch11.addGeometry([
    Part.LineSegment(App.Vector(212.4, 35.2, 0), App.Vector(208.5, 35.2, 0)),
    Part.LineSegment(App.Vector(208.5, 35.2, 0), App.Vector(208.5, 37.5, 0)),
    Part.LineSegment(App.Vector(208.5, 37.5, 0), App.Vector(212.4, 37.5, 0)),
    Part.LineSegment(App.Vector(212.4, 37.5, 0), App.Vector(212.4, 35.2, 0)),
], False)
sketch11.addConstraint([
    Sketcher.Constraint("Coincident", 0, 2, 1, 1),
    Sketcher.Constraint("Coincident", 1, 2, 2, 1),
    Sketcher.Constraint("Coincident", 2, 2, 3, 1),
    Sketcher.Constraint("Coincident", 3, 2, 0, 1),
    Sketcher.Constraint("Horizontal", 0),
    Sketcher.Constraint("Vertical", 1),
    Sketcher.Constraint("Horizontal", 2),
    Sketcher.Constraint("Vertical", 3),
    Sketcher.Constraint("DistanceX", 0, 2, 0, 1, 3.95),
    Sketcher.Constraint("DistanceY", 1, 1, 1, 2, 2.25),
    Sketcher.Constraint("DistanceX", -1, 1, 0, 2, 208.5),
    Sketcher.Constraint("DistanceY", -1, 1, 1, 2, 37.5),
])
pocket8 = body.newObject("PartDesign::Pocket", "Pocket007")
pocket8.Profile = sketch11
pocket8.Type = "ThroughAll"
pocket8.Reversed = True

# Sketch on YZ plane
sketch12 = body.newObject("Sketcher::SketchObject", "Sketch011")
sketch12.AttachmentSupport = (doc.getObject("YZ_Plane"), [""])
sketch12.MapMode = "FlatFace"
sketch12.AttachmentOffset = App.Placement(App.Vector(0, 0, 90), App.Rotation())
sketch12.addGeometry([
    Part.LineSegment(App.Vector(207, 36, 0), App.Vector(163, 36, 0)),
    Part.LineSegment(App.Vector(163, 36, 0), App.Vector(163, -10, 0)),
    Part.LineSegment(App.Vector(163, -10, 0), App.Vector(207, -10, 0)),
    Part.LineSegment(App.Vector(207, -10, 0), App.Vector(207, 36, 0)),
], False)
sketch12.addConstraint([
    Sketcher.Constraint("Coincident", 0, 2, 1, 1),
    Sketcher.Constraint("Coincident", 1, 2, 2, 1),
    Sketcher.Constraint("Coincident", 2, 2, 3, 1),
    Sketcher.Constraint("Coincident", 3, 2, 0, 1),
    Sketcher.Constraint("Horizontal", 0),
    Sketcher.Constraint("Vertical", 1),
    Sketcher.Constraint("Horizontal", 2),
    Sketcher.Constraint("Vertical", 3),
    Sketcher.Constraint("DistanceX", 0, 2, 0, 1, 44.2),
    Sketcher.Constraint("DistanceY", 1, 2, 1, 1, 45.7),
    Sketcher.Constraint("DistanceX", -1, 1, 0, 2, 162.9),
    Sketcher.Constraint("DistanceY", -1, 1, 0, 2, 36.1),
])
pocket9 = body.newObject("PartDesign::Pocket", "Pocket008")
pocket9.Profile = sketch12
pocket9.Length = 86

# Sketch on YZ plane
sketch13 = body.newObject("Sketcher::SketchObject", "Sketch012")
sketch13.AttachmentSupport = (doc.getObject("YZ_Plane"), [""])
sketch13.MapMode = "FlatFace"
sketch13.AttachmentOffset = App.Placement(App.Vector(0, 0, 90), App.Rotation())
sketch13.addGeometry([
    Part.Circle(App.Vector(159.2, -5.5, 0), App.Vector(0, 0, 1), 1.2),  # 0
    Part.Circle(App.Vector(159.2, 21, 0), App.Vector(0, 0, 1), 1.2),  # 1
    Part.Circle(App.Vector(159.2, 5.5, 0), App.Vector(0, 0, 1), 1.2),  # 2
    Part.Circle(App.Vector(159.2, 32, 0), App.Vector(0, 0, 1), 1.2),  # 3
    Part.Circle(App.Vector(167, 39.8, 0), App.Vector(0, 0, 1), 1.2),  # 4
    Part.Circle(App.Vector(203, 39.8, 0), App.Vector(0, 0, 1), 1.2),  # 5
], False)
sketch13.addConstraint([
    Sketcher.Constraint("Equal", 0, 1),
    Sketcher.Constraint("Equal", 1, 2),
    Sketcher.Constraint("Equal", 2, 3),
    Sketcher.Constraint("Equal", 3, 4),
    Sketcher.Constraint("Equal", 4, 5),
    Sketcher.Constraint("Symmetric", 0, 3, 2, 3, -1),
    Sketcher.Constraint("Horizontal", 4, 3, 5, 3),
    Sketcher.Constraint("Vertical", 0, 3, 1, 3),
    Sketcher.Constraint("Vertical", 2, 3, 3, 3),
    Sketcher.Constraint("Diameter", 0, 2.5),
    Sketcher.Constraint("DistanceY", -1, 1, 1, 3, 21.0),
    Sketcher.Constraint("DistanceY", -1, 1, 3, 3, 32.0),
    Sketcher.Constraint("DistanceX", -1, 1, 4, 3, 167.0),
    Sketcher.Constraint("DistanceX", -1, 1, 5, 3, 203.0),
    Sketcher.Constraint("DistanceY", 0, 3, 2, 3, 11.0),
    Sketcher.Constraint("DistanceX", -1, 1, 0, 3, 159.25),
    Sketcher.Constraint("DistanceY", -1, 1, 4, 3, 39.75),
])
doc.recompute()
hole = body.newObject("PartDesign::Hole", "Hole")
hole.Profile = sketch13
hole.ThreadType = "None"
hole.Diameter = 2.5
hole.DepthType = "ThroughAll"

# Sketch on YZ plane
sketch14 = body.newObject("Sketcher::SketchObject", "Sketch013")
sketch14.AttachmentSupport = (doc.getObject("YZ_Plane"), [""])
sketch14.MapMode = "FlatFace"
sketch14.addGeometry([
    Part.Circle(App.Vector(167, -13.2, 0), App.Vector(0, 0, 1), 2.2),  # 0
    Part.Circle(App.Vector(203, -13.2, 0), App.Vector(0, 0, 1), 2.2),  # 1
    Part.Circle(App.Vector(210.8, -5.5, 0), App.Vector(0, 0, 1), 2.2),  # 2
    Part.Circle(App.Vector(210.8, 5.5, 0), App.Vector(0, 0, 1), 2.2),  # 3
    Part.Circle(App.Vector(210.8, 21, 0), App.Vector(0, 0, 1), 2.2),  # 4
    Part.Circle(App.Vector(210.8, 32, 0), App.Vector(0, 0, 1), 2.2),  # 5
], False)
sketch14.addConstraint([
    Sketcher.Constraint("Equal", 0, 1),
    Sketcher.Constraint("Equal", 1, 2),
    Sketcher.Constraint("Equal", 2, 3),
    Sketcher.Constraint("Equal", 3, 4),
    Sketcher.Constraint("Equal", 4, 5),
    Sketcher.Constraint("Symmetric", 2, 3, 3, 3, -1),
    Sketcher.Constraint("Horizontal", 0, 3, 1, 3),
    Sketcher.Constraint("Vertical", 3, 3, 4, 3),
    Sketcher.Constraint("Vertical", 4, 3, 5, 3),
    Sketcher.Constraint("Diameter", 0, 4.5),
    Sketcher.Constraint("DistanceX", -1, 1, 0, 3, 167.0),
    Sketcher.Constraint("DistanceX", -1, 1, 1, 3, 203.0),
    Sketcher.Constraint("DistanceY", -1, 1, 4, 3, 21.0),
    Sketcher.Constraint("DistanceY", -1, 1, 5, 3, 32.0),
    Sketcher.Constraint("DistanceY", 2, 3, 3, 3, 11.0),
    Sketcher.Constraint("DistanceY", 0, 3, -1, 1, 13.25),
    Sketcher.Constraint("DistanceX", -1, 1, 2, 3, 210.75),
])
doc.recompute()
hole2 = body.newObject("PartDesign::Hole", "Hole001")
hole2.Profile = sketch14
hole2.ThreadType = "None"
hole2.Diameter = 4.5
hole2.DepthType = "ThroughAll"
hole2.Reversed = True

# Sketch on YZ plane
sketch15 = body.newObject("Sketcher::SketchObject", "Sketch014")
sketch15.AttachmentSupport = (doc.getObject("YZ_Plane"), [""])
sketch15.MapMode = "FlatFace"
sketch15.addGeometry(Part.Circle(App.Vector(185, 13.2, 0), App.Vector(0, 0, 1), 4.2), False)
sketch15.addConstraint([
    Sketcher.Constraint("Diameter", 0, 8.3),
    Sketcher.Constraint("DistanceX", -1, 1, 0, 3, 185.0),
    Sketcher.Constraint("DistanceY", -1, 1, 0, 3, 13.25),
])
doc.recompute()
hole3 = body.newObject("PartDesign::Hole", "Hole002")
hole3.Profile = sketch15
hole3.ThreadType = "None"
hole3.Diameter = 8.3
hole3.DepthType = "Dimension"
hole3.Depth = 3.2
hole3.DrillPoint = "Flat"
hole3.Reversed = True

# Sketch on YZ plane
sketch16 = body.newObject("Sketcher::SketchObject", "Sketch015")
sketch16.AttachmentSupport = (doc.getObject("YZ_Plane"), [""])
sketch16.MapMode = "FlatFace"
sketch16.AttachmentOffset = App.Placement(App.Vector(0, 0, 90), App.Rotation())
sketch16.addGeometry([
    Part.Circle(App.Vector(203, 39.8, 0), App.Vector(0, 0, 1), 1.7),  # 0
    Part.Circle(App.Vector(167, 39.8, 0), App.Vector(0, 0, 1), 1.5),  # 1
    Part.Circle(App.Vector(159.2, 32, 0), App.Vector(0, 0, 1), 1.5),  # 2
    Part.Circle(App.Vector(159.2, 21, 0), App.Vector(0, 0, 1), 1.6),  # 3
    Part.Circle(App.Vector(159.2, 5.5, 0), App.Vector(0, 0, 1), 1.5),  # 4
    Part.Circle(App.Vector(159.2, -5.5, 0), App.Vector(0, 0, 1), 1.6),  # 5
], False)
sketch16.addConstraint([
    Sketcher.Constraint("Symmetric", 4, 3, 5, 3, -1),
    Sketcher.Constraint("Horizontal", 0, 3, 1, 3),
    Sketcher.Constraint("Vertical", 2, 3, 3, 3),
    Sketcher.Constraint("Vertical", 3, 3, 4, 3),
    Sketcher.Constraint("DistanceX", -1, 1, 0, 3, 203.0),
    Sketcher.Constraint("DistanceX", -1, 1, 1, 3, 167.0),
    Sketcher.Constraint("DistanceY", -1, 1, 2, 3, 32.0),
    Sketcher.Constraint("DistanceY", -1, 1, 3, 3, 21.0),
    Sketcher.Constraint("DistanceY", 5, 3, 4, 3, 11.0),
    Sketcher.Constraint("Diameter", 1, 2.91832),
    Sketcher.Constraint("DistanceY", -1, 1, 0, 3, 39.75),
    Sketcher.Constraint("DistanceX", -1, 1, 2, 3, 159.25),
    Sketcher.Constraint("Diameter", 0, 3.345057),
    Sketcher.Constraint("Diameter", 2, 2.919818),
    Sketcher.Constraint("Diameter", 3, 3.185644),
    Sketcher.Constraint("Diameter", 4, 3.064433),
    Sketcher.Constraint("Diameter", 5, 3.192276),
])
pad4 = body.newObject("PartDesign::Pad", "Pad003")
pad4.Profile = sketch16
pad4.Length = 90
pad4.Reversed = True

# Sketch on YZ plane
sketch17 = body.newObject("Sketcher::SketchObject", "Sketch016")
sketch17.AttachmentSupport = (doc.getObject("YZ_Plane"), [""])
sketch17.MapMode = "FlatFace"
sketch17.AttachmentOffset = App.Placement(App.Vector(0, 0, 90), App.Rotation())
sketch17.addGeometry(Part.Circle(App.Vector(185, 13.2, 0), App.Vector(0, 0, 1), 4.2), False)
sketch17.addConstraint([
    Sketcher.Constraint("Diameter", 0, 8.3),
    Sketcher.Constraint("DistanceX", -1, 1, 0, 3, 185.0),
    Sketcher.Constraint("DistanceY", -1, 1, 0, 3, 13.25),
])
pocket10 = body.newObject("PartDesign::Pocket", "Pocket009")
pocket10.Profile = sketch17
pocket10.Length = 90
doc.recompute()

fillet = body.newObject("PartDesign::Fillet", "Fillet")
fillet.Base = (pocket10, edges_at(pocket10, [(45, 208.5, -8.75)]))
fillet.Radius = 2
doc.recompute()

fillet2 = body.newObject("PartDesign::Fillet", "Fillet001")
fillet2.Base = (fillet, edges_at(fillet, [(45, 163.75, -11)]))
fillet2.Radius = 2
doc.recompute()

fillet3 = body.newObject("PartDesign::Fillet", "Fillet002")
fillet3.Base = (fillet2, edges_at(fillet2, [(45, 170.25, -11)]))
fillet3.Radius = 2
doc.recompute()

fillet4 = body.newObject("PartDesign::Fillet", "Fillet003")
fillet4.Base = (fillet3, edges_at(fillet3, [(45, 199.75, -11)]))
fillet4.Radius = 2
doc.recompute()

fillet5 = body.newObject("PartDesign::Fillet", "Fillet004")
fillet5.Base = (fillet4, edges_at(fillet4, [(45, 206.25, -11)]))
fillet5.Radius = 2
doc.recompute()

fillet6 = body.newObject("PartDesign::Fillet", "Fillet005")
fillet6.Base = (fillet5, edges_at(fillet5, [(45, 208.5, -2.25)]))
fillet6.Radius = 2
doc.recompute()

fillet7 = body.newObject("PartDesign::Fillet", "Fillet006")
fillet7.Base = (fillet6, edges_at(fillet6, [(45, 208.5, 2.25)]))
fillet7.Radius = 2
doc.recompute()

fillet8 = body.newObject("PartDesign::Fillet", "Fillet007")
fillet8.Base = (fillet7, edges_at(fillet7, [(45, 208.5, 8.75)]))
fillet8.Radius = 2
doc.recompute()

fillet9 = body.newObject("PartDesign::Fillet", "Fillet008")
fillet9.Base = (fillet8, edges_at(fillet8, [(45, 208.5, 17.75)]))
fillet9.Radius = 2
doc.recompute()

fillet10 = body.newObject("PartDesign::Fillet", "Fillet009")
fillet10.Base = (fillet9, edges_at(fillet9, [(45, 208.5, 24.25)]))
fillet10.Radius = 2
doc.recompute()

fillet11 = body.newObject("PartDesign::Fillet", "Fillet010")
fillet11.Base = (fillet10, edges_at(fillet10, [(45, 208.5, 28.75)]))
fillet11.Radius = 2
doc.recompute()

fillet12 = body.newObject("PartDesign::Fillet", "Fillet011")
fillet12.Base = (fillet11, edges_at(fillet11, [(45, 208.5, 35.25)]))
fillet12.Radius = 2
doc.recompute()

fillet13 = body.newObject("PartDesign::Fillet", "Fillet012")
fillet13.Base = (fillet12, edges_at(fillet12, [
    (4, 185, -9.6),
    (4, 162.9, 13.25),
    (4, 185, 36.1),
    (4, 207.1, 13.25),
]))
fillet13.Radius = 1.2

doc.recompute()
